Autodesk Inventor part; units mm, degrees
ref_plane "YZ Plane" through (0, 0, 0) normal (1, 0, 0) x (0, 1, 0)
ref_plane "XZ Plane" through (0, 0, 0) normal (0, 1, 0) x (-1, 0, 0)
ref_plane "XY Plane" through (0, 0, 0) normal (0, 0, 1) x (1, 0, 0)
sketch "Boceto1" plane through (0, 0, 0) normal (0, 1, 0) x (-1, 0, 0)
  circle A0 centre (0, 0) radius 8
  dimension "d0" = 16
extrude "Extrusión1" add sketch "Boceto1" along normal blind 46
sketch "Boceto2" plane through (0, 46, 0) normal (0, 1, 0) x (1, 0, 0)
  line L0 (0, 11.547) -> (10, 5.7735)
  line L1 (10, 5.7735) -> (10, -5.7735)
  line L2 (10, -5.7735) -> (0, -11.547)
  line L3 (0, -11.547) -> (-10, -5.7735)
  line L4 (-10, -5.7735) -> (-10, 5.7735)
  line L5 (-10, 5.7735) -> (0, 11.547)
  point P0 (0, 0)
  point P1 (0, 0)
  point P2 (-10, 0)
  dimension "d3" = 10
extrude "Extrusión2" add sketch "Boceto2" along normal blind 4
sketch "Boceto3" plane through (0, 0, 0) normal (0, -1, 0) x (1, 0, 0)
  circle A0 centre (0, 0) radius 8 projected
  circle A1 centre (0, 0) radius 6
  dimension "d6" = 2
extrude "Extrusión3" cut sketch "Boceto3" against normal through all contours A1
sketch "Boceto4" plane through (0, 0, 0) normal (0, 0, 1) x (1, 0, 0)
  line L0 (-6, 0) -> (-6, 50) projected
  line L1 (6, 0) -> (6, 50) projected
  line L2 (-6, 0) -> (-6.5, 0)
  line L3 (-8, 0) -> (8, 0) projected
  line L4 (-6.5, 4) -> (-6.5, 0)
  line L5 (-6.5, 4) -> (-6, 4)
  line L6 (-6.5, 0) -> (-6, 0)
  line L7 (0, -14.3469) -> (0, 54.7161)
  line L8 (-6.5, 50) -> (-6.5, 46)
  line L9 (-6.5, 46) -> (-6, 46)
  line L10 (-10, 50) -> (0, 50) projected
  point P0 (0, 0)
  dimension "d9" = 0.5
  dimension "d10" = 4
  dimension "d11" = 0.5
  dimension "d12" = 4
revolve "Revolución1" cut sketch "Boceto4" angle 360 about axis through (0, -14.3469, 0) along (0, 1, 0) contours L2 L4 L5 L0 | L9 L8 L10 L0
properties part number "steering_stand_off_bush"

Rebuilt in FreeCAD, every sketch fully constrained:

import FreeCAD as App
import Part
import Sketcher
Q = App.Units.Quantity


def add_polygon(sketch, points):
    """Adds a closed chain of lines whose ends are joined by coincident constraints."""
    first, n = sketch.GeometryCount, len(points)
    for a, b in zip(points, points[1:] + points[:1]):
        sketch.addGeometry(Part.LineSegment(App.Vector(*a, 0), App.Vector(*b, 0)), False)
    for i in range(n):
        sketch.addConstraint(Sketcher.Constraint("Coincident", first + i, 2, first + (i + 1) % n, 1))

doc = App.newDocument("Part")
body = doc.addObject("PartDesign::Body", "Body")

# Sketch on XZ plane
sketch1 = body.newObject("Sketcher::SketchObject", "Sketch")
sketch1.AttachmentSupport = (doc.getObject("XZ_Plane"), [""])
sketch1.MapMode = "FlatFace"
sketch1.addGeometry(Part.Circle(App.Vector(0, 0, 0), App.Vector(0, 0, 1), 8), False)
sketch1.addConstraint(Sketcher.Constraint("Coincident", 0, 3, -1, 1))
sketch1.addConstraint(Sketcher.Constraint("Diameter", 0, Q("16 mm")))
pad1 = body.newObject("PartDesign::Pad", "Pad")
pad1.Profile = sketch1
pad1.Length = 46
pad1.Reversed = True

# Sketch on XZ plane
sketch2 = body.newObject("Sketcher::SketchObject", "Sketch001")
sketch2.AttachmentSupport = (doc.getObject("XZ_Plane"), [""])
sketch2.MapMode = "FlatFace"
sketch2.AttachmentOffset = App.Placement(App.Vector(0, 0, -46), App.Rotation())
add_polygon(sketch2, [(10, -5.7735), (0, -11.547), (-10, -5.7735), (-10, 5.7735), (0, 11.547), (10, 5.7735)])  # lines 0-5
sketch2.addConstraint(Sketcher.Constraint("Vertical", 2))
sketch2.addConstraint(Sketcher.Constraint("Vertical", 5))
sketch2.addConstraint(Sketcher.Constraint("Symmetric", 0, 2, 3, 2, -1, 1))
sketch2.addConstraint(Sketcher.Constraint("Symmetric", 1, 2, 4, 2, -1, 1))
sketch2.addConstraint(Sketcher.Constraint("PointOnObject", 0, 2, -2))
sketch2.addConstraint(Sketcher.Constraint("Parallel", 0, 3))
sketch2.addConstraint(Sketcher.Constraint("Horizontal", 2, 2, 4, 2))
sketch2.addConstraint(Sketcher.Constraint("DistanceX", 1, 2, -1, 1, Q("10 mm")))
sketch2.addConstraint(Sketcher.Constraint("Angle", 0, Q("-150 deg")))
sketch2.addConstraint(Sketcher.Constraint("DistanceY", 2, 1, 2, 2, Q("11.547 mm")))
pad2 = body.newObject("PartDesign::Pad", "Pad001")
pad2.Profile = sketch2
pad2.Length = 4
pad2.Reversed = True

# Sketch on XZ plane
sketch3 = body.newObject("Sketcher::SketchObject", "Sketch002")
sketch3.AttachmentSupport = (doc.getObject("XZ_Plane"), [""])
sketch3.MapMode = "FlatFace"
sketch3.addGeometry(Part.Circle(App.Vector(0, 0, 0), App.Vector(0, 0, 1), 6), False)
sketch3.addConstraint(Sketcher.Constraint("Coincident", 0, 3, -1, 1))
sketch3.addConstraint(Sketcher.Constraint("Diameter", 0, Q("12 mm")))
pocket1 = body.newObject("PartDesign::Pocket", "Pocket")
pocket1.Profile = sketch3
pocket1.Type = "ThroughAll"

# Sketch on XY plane
sketch4 = body.newObject("Sketcher::SketchObject", "Sketch003")
sketch4.AttachmentSupport = (doc.getObject("XY_Plane"), [""])
sketch4.MapMode = "FlatFace"
add_polygon(sketch4, [(-6.5, 0), (-6, 0), (-6, 4), (-6.5, 4)])  # lines 0-3
add_polygon(sketch4, [(-6.5, 46), (-6, 46), (-6, 50), (-6.5, 50)])  # lines 4-7
sketch4.addConstraint(Sketcher.Constraint("Horizontal", 0))
sketch4.addConstraint(Sketcher.Constraint("Vertical", 1))
sketch4.addConstraint(Sketcher.Constraint("Horizontal", 2))
sketch4.addConstraint(Sketcher.Constraint("Vertical", 3))
sketch4.addConstraint(Sketcher.Constraint("Horizontal", 4))
sketch4.addConstraint(Sketcher.Constraint("Vertical", 5))
sketch4.addConstraint(Sketcher.Constraint("Horizontal", 6))
sketch4.addConstraint(Sketcher.Constraint("Vertical", 7))
sketch4.addConstraint(Sketcher.Constraint("PointOnObject", 0, 2, -1))
sketch4.addConstraint(Sketcher.Constraint("Vertical", 1, 2, 4, 2))
sketch4.addConstraint(Sketcher.Constraint("Vertical", 3, 2, 6, 2))
sketch4.addConstraint(Sketcher.Constraint("Equal", 3, 5))
sketch4.addConstraint(Sketcher.Constraint("DistanceY", 1, 1, 1, 2, Q("4 mm")))
sketch4.addConstraint(Sketcher.Constraint("DistanceX", 0, 1, 0, 2, Q("0.5 mm")))
sketch4.addConstraint(Sketcher.Constraint("DistanceX", 0, 2, -1, 1, Q("6 mm")))
sketch4.addConstraint(Sketcher.Constraint("DistanceY", -1, 1, 4, 2, Q("46 mm")))
groove = body.newObject("PartDesign::Groove", "Groove")
groove.Profile = sketch4
groove.ReferenceAxis = (sketch4, ["V_Axis"])
groove.Angle = 360

doc.recompute()
